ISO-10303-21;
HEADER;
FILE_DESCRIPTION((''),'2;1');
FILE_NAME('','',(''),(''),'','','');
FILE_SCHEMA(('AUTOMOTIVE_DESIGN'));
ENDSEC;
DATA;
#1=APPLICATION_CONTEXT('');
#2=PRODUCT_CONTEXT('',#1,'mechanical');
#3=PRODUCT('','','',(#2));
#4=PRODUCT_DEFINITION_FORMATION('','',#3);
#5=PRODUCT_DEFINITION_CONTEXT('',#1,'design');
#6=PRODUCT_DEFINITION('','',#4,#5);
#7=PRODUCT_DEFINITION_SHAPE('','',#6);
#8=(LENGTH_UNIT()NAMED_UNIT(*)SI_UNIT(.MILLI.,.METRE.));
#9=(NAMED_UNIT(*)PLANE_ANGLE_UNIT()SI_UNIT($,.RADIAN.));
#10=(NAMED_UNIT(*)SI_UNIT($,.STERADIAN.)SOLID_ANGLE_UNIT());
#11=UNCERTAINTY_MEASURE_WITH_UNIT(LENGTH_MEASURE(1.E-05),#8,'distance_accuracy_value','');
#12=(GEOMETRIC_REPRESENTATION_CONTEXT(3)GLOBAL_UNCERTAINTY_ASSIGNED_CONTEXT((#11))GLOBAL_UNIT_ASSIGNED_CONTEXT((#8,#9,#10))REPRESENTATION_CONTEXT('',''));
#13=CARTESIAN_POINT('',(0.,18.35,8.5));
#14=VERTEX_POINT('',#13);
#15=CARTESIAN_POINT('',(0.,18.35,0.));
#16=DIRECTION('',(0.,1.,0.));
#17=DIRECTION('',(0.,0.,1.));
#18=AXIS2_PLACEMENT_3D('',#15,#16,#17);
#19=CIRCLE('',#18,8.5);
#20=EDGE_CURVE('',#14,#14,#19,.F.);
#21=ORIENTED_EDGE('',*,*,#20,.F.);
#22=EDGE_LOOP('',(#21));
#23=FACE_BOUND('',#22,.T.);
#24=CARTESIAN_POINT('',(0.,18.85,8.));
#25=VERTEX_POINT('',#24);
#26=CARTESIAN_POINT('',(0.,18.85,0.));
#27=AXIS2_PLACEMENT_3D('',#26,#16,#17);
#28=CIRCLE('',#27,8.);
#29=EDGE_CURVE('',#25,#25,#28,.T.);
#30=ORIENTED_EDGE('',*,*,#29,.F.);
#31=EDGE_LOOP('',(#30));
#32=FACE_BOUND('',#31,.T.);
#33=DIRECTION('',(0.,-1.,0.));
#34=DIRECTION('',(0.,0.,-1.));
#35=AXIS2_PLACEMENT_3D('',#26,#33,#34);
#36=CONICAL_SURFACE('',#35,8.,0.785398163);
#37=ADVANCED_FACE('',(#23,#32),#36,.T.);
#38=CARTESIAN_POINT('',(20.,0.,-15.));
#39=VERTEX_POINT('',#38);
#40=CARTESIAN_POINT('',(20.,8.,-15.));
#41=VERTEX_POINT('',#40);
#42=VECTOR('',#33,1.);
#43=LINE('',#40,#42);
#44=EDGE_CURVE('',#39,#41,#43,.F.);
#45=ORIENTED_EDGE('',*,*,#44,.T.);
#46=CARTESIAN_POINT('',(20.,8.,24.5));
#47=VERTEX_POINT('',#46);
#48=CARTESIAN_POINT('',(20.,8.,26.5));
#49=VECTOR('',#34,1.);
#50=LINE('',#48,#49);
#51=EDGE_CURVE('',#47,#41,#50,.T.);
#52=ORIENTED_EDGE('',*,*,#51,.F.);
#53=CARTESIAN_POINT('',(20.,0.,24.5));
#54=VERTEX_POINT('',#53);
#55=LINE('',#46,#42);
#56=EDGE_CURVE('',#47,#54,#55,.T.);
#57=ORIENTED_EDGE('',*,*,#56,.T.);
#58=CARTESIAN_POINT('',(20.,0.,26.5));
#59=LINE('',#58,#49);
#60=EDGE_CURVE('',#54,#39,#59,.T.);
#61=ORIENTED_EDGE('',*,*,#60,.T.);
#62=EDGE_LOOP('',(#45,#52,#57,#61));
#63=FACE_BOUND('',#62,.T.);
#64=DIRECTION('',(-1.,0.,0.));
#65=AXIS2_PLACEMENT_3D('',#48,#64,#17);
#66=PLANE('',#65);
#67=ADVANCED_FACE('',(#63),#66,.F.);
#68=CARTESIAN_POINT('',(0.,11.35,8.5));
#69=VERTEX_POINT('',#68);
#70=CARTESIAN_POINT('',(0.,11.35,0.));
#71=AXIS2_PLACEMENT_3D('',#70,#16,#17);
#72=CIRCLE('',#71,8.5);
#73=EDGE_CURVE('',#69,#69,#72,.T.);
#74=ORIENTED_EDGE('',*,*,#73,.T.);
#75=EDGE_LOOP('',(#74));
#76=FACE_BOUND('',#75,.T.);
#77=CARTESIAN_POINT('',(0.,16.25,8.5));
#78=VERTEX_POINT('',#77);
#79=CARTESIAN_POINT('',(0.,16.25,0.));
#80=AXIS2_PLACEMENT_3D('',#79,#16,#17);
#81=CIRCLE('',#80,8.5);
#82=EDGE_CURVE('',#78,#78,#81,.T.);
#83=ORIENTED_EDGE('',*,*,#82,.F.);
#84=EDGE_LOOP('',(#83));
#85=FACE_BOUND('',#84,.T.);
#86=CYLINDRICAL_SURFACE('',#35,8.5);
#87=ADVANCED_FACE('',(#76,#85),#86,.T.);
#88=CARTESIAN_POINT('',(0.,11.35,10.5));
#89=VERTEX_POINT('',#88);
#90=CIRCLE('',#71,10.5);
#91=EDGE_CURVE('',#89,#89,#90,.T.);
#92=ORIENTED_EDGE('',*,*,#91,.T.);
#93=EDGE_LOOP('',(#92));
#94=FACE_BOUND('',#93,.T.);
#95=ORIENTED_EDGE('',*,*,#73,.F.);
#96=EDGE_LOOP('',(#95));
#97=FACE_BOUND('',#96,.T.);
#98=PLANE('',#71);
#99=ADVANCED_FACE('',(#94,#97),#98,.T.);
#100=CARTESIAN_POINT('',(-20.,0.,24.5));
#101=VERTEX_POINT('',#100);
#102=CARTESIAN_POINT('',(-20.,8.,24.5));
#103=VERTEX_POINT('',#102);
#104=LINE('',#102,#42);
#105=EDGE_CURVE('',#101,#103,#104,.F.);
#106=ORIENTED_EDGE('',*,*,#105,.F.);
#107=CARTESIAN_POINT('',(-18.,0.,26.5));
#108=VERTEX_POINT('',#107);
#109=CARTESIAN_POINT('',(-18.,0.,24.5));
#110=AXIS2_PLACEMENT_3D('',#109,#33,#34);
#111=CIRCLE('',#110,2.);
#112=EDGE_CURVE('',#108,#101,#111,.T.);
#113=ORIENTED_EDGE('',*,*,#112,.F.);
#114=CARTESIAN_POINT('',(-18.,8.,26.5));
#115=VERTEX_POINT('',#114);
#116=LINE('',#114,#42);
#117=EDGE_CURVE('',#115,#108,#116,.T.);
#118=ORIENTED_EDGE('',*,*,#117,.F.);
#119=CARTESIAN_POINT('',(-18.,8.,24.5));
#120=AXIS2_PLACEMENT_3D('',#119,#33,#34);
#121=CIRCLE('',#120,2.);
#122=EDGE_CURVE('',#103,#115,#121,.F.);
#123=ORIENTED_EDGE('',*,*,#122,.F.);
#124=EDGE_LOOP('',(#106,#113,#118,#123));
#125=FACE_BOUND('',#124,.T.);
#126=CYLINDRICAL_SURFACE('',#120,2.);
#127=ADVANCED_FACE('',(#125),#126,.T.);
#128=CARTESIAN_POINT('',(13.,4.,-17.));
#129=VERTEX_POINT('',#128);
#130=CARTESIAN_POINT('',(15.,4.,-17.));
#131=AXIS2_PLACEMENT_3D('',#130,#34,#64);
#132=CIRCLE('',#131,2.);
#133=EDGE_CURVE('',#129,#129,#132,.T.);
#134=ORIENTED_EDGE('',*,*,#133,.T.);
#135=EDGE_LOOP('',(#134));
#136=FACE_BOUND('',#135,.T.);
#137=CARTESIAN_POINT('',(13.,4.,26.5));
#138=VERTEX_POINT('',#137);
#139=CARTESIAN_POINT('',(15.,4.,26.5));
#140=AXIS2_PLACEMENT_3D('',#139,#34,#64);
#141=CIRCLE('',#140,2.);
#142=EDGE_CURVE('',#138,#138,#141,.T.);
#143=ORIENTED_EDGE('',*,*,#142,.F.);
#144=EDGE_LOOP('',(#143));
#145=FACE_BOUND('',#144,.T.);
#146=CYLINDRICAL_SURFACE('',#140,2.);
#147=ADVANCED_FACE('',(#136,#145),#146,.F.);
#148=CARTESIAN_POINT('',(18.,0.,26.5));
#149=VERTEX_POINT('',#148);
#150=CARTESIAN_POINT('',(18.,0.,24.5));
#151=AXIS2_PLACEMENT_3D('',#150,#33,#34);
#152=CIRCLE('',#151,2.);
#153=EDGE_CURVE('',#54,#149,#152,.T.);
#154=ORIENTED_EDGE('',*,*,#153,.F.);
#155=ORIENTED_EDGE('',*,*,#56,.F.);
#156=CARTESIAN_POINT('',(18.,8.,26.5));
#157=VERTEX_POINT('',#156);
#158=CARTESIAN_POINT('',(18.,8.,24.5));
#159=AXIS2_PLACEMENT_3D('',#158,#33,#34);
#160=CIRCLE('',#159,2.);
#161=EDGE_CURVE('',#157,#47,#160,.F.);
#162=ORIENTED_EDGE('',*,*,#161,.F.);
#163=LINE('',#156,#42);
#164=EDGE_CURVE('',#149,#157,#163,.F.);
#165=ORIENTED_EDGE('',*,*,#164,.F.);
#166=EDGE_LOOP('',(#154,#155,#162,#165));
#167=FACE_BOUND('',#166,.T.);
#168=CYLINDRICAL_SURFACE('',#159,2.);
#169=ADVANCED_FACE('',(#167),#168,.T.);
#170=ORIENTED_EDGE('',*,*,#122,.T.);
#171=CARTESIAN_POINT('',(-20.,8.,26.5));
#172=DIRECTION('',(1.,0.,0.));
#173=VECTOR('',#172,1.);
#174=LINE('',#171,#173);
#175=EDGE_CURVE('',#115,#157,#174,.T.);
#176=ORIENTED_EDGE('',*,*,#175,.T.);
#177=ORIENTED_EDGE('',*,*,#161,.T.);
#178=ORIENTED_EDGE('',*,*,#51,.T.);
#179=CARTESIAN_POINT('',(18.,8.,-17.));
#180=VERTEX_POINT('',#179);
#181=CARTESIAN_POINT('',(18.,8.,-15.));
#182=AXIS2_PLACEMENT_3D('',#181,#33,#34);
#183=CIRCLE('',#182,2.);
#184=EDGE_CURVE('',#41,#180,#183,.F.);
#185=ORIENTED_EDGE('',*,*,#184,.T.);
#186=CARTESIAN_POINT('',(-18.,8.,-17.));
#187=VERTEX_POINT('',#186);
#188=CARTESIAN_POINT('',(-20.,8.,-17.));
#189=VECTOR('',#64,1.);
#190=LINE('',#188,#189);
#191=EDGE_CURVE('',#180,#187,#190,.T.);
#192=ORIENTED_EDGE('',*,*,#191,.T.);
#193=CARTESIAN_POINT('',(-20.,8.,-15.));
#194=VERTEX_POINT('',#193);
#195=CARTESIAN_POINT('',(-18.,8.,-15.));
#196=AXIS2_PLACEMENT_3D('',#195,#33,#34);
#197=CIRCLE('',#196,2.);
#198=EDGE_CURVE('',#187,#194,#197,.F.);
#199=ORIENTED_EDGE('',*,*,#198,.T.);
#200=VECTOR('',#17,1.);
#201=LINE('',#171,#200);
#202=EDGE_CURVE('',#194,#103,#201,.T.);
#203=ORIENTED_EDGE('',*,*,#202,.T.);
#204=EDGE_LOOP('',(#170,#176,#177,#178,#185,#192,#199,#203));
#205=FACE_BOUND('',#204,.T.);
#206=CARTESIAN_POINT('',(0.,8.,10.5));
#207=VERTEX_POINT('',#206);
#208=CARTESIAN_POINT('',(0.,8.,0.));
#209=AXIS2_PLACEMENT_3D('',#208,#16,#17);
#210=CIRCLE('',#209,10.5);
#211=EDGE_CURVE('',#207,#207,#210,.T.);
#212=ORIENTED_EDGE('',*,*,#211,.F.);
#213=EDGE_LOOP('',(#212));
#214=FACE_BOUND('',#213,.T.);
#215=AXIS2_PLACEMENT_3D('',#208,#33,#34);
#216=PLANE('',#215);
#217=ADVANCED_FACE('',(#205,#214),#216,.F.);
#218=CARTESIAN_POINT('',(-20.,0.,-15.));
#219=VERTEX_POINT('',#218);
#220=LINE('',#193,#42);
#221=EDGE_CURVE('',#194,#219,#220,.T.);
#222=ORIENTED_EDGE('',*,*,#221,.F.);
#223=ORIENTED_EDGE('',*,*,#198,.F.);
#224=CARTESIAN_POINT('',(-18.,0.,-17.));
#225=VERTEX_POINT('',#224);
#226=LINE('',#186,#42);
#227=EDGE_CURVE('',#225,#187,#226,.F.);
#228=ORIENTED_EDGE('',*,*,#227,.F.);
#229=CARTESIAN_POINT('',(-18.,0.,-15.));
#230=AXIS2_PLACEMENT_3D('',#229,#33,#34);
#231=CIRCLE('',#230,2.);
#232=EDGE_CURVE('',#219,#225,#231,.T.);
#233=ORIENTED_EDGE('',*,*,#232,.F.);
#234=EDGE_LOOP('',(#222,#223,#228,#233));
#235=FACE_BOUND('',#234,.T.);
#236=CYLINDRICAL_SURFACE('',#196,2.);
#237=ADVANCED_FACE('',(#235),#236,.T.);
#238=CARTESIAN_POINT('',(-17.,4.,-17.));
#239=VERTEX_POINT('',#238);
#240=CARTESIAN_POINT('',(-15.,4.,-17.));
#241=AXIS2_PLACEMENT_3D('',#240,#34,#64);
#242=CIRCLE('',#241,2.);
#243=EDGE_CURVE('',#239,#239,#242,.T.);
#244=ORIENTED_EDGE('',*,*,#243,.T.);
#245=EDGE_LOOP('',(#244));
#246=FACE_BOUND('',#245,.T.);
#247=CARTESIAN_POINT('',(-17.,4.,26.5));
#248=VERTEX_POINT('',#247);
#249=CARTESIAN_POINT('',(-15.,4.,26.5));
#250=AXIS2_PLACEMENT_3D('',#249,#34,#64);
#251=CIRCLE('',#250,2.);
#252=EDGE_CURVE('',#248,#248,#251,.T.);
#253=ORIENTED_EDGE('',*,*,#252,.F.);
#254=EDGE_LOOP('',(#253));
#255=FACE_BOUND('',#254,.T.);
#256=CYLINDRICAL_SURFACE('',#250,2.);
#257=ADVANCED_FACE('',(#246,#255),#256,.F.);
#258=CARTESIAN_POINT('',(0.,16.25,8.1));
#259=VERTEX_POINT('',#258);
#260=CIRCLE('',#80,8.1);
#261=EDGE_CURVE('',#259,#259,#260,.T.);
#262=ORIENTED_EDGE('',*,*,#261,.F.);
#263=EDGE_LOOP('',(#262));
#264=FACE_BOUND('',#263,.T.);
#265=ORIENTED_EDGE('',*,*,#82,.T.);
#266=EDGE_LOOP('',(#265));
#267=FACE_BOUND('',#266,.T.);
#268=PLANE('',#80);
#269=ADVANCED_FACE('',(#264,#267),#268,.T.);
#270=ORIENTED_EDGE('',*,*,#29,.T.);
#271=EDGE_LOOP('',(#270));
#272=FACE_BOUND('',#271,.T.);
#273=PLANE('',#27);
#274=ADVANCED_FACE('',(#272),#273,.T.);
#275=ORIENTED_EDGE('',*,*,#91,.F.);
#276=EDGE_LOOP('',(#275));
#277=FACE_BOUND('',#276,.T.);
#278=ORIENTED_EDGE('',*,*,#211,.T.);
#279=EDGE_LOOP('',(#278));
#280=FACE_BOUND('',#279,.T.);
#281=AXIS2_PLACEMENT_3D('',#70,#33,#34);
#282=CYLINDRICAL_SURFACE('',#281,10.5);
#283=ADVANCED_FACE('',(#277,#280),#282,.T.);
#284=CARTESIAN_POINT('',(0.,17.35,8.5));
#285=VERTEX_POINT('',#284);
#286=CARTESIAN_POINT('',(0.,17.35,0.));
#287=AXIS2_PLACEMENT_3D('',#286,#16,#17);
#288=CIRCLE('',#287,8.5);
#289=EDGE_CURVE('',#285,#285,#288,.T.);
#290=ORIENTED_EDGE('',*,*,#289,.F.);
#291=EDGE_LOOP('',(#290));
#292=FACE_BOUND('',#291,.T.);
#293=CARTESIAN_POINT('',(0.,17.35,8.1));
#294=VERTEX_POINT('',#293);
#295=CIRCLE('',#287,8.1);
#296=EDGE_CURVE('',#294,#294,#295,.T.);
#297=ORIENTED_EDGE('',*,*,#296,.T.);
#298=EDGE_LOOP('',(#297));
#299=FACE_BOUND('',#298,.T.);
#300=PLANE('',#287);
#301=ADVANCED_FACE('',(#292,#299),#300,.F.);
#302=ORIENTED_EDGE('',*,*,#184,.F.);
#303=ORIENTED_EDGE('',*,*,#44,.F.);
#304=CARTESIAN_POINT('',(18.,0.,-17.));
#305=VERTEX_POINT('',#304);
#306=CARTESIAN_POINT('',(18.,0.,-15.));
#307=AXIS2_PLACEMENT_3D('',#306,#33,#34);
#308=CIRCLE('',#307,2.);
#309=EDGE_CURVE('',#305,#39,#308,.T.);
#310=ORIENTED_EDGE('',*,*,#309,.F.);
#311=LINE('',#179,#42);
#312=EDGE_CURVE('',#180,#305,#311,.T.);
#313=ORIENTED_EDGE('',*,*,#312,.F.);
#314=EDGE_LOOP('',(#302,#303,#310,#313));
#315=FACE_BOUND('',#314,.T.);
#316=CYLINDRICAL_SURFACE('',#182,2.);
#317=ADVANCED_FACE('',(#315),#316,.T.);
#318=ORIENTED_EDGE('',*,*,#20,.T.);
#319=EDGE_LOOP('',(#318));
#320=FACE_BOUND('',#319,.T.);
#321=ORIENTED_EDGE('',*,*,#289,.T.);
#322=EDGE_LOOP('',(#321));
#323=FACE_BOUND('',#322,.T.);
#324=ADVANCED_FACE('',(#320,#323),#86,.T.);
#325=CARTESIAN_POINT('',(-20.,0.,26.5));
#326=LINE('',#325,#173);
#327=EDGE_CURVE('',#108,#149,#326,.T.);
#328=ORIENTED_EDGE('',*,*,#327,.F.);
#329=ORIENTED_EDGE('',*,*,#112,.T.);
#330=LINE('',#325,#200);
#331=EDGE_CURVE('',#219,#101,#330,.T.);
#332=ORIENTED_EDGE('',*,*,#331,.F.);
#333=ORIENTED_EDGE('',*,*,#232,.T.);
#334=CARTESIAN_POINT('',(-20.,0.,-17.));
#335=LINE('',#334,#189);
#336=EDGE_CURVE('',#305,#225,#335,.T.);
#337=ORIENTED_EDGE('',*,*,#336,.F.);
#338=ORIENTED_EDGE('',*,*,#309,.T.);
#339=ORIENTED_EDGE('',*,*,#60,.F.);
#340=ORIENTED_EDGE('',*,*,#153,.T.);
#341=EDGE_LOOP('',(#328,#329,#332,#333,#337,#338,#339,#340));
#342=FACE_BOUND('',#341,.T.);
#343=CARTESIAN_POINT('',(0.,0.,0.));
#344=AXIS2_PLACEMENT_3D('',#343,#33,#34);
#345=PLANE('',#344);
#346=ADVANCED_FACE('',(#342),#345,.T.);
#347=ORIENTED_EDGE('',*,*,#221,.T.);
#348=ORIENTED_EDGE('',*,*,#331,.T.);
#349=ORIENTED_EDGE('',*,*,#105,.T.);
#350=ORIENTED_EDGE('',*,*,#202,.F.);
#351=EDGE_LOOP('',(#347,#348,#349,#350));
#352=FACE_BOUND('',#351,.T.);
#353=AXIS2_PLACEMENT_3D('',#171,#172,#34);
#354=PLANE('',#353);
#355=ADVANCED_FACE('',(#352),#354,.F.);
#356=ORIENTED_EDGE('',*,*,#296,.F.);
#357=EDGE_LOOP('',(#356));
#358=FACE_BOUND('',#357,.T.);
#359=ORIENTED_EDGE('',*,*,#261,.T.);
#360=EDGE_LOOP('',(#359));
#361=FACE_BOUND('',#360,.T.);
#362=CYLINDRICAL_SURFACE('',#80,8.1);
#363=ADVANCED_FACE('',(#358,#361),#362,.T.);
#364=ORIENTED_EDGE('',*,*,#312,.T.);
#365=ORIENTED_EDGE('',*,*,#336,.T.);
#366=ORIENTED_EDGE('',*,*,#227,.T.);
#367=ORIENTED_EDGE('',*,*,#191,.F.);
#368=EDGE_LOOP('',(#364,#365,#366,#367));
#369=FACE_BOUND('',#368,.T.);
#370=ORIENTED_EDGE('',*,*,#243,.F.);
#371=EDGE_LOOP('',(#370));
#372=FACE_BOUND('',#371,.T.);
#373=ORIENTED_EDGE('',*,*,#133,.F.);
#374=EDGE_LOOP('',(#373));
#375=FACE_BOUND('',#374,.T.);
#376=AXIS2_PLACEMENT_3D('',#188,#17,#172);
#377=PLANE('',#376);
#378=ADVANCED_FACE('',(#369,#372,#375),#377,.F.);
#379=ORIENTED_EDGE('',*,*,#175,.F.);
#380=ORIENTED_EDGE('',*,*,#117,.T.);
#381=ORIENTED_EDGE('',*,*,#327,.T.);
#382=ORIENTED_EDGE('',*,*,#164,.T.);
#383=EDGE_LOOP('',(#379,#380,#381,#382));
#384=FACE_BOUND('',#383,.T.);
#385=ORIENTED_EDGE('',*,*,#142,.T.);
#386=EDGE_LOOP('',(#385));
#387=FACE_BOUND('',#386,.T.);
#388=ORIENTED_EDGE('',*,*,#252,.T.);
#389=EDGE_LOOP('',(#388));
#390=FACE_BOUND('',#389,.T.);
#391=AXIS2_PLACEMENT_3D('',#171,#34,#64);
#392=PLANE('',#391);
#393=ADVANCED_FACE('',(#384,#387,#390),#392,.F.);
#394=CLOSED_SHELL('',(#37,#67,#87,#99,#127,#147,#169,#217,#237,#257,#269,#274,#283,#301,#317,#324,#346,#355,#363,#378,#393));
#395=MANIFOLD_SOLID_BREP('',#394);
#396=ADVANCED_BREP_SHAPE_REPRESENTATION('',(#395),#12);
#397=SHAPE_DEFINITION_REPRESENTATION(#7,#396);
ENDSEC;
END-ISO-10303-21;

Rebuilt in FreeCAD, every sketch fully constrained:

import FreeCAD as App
import Part
import Sketcher
Q = App.Units.Quantity


def edges_at(feature, points):
    """Names of the edges that pass closest to the given points."""
    edges = feature.Shape.Edges
    near = lambda p: min(range(len(edges)), key=lambda i: edges[i].distToShape(Part.Vertex(*p))[0])
    return sorted({f"Edge{near(p) + 1}" for p in points})


def add_polygon(sketch, points):
    """Adds a closed chain of lines whose ends are joined by coincident constraints."""
    first, n = sketch.GeometryCount, len(points)
    for a, b in zip(points, points[1:] + points[:1]):
        sketch.addGeometry(Part.LineSegment(App.Vector(*a, 0), App.Vector(*b, 0)), False)
    for i in range(n):
        sketch.addConstraint(Sketcher.Constraint("Coincident", first + i, 2, first + (i + 1) % n, 1))

doc = App.newDocument("Part")
body = doc.addObject("PartDesign::Body", "Body")

# Sketch on XZ plane
sketch1 = doc.addObject("Sketcher::SketchObject", "Sketch")
body.addObject(sketch1)
sketch1.AttachmentSupport = (doc.XZ_Plane, [""])
sketch1.MapMode = "FlatFace"
add_polygon(sketch1, [(-20, -17), (-20, 26.5), (20, 26.5), (20, -17)])  # lines 0-3
sketch1.addConstraint([
    Sketcher.Constraint("Vertical", 0),
    Sketcher.Constraint("Horizontal", 1),
    Sketcher.Constraint("Vertical", 2),
    Sketcher.Constraint("Horizontal", 3),
    Sketcher.Constraint("DistanceX", 1, 1, 1, 2, Q("40 mm")),
    Sketcher.Constraint("DistanceY", 0, 1, 0, 2, Q("43.5 mm")),
    Sketcher.Constraint("DistanceX", 0, 2, -1, 1, Q("20 mm")),
    Sketcher.Constraint("DistanceY", 2, 2, -1, 1, Q("17 mm")),
])
pad1 = doc.addObject("PartDesign::Pad", "Pad")
body.addObject(pad1)
pad1.Profile = sketch1
pad1.Length = 8
pad1.Reversed = True

# Sketch on XZ plane
sketch2 = doc.addObject("Sketcher::SketchObject", "Sketch001")
body.addObject(sketch2)
sketch2.AttachmentSupport = (doc.XZ_Plane, [""])
sketch2.MapMode = "FlatFace"
sketch2.AttachmentOffset = App.Placement(App.Vector(0, 0, -8), App.Rotation())
sketch2.addGeometry(Part.Circle(App.Vector(0, 0, 0), App.Vector(0, 0, 1), 10.5), False)
sketch2.addConstraint([
    Sketcher.Constraint("Coincident", 0, 3, -1, 1),
    Sketcher.Constraint("Diameter", 0, Q("21 mm")),
])
pad2 = doc.addObject("PartDesign::Pad", "Pad001")
body.addObject(pad2)
pad2.Profile = sketch2
pad2.Length = 3.35
pad2.Reversed = True

# Sketch on XZ plane
sketch3 = doc.addObject("Sketcher::SketchObject", "Sketch002")
body.addObject(sketch3)
sketch3.AttachmentSupport = (doc.XZ_Plane, [""])
sketch3.MapMode = "FlatFace"
sketch3.AttachmentOffset = App.Placement(App.Vector(0, 0, -11.35), App.Rotation())
sketch3.addGeometry(Part.Circle(App.Vector(0, 0, 0), App.Vector(0, 0, 1), 8.5), False)
sketch3.addConstraint([
    Sketcher.Constraint("Coincident", 0, 3, -1, 1),
    Sketcher.Constraint("Diameter", 0, Q("17 mm")),
])
pad3 = doc.addObject("PartDesign::Pad", "Pad002")
body.addObject(pad3)
pad3.Profile = sketch3
pad3.Length = 7.5
pad3.Reversed = True

# Sketch on XY plane
sketch4 = doc.addObject("Sketcher::SketchObject", "Sketch003")
body.addObject(sketch4)
sketch4.AttachmentSupport = (doc.XY_Plane, [""])
sketch4.MapMode = "FlatFace"
sketch4.AttachmentOffset = App.Placement(App.Vector(0, 0, -17), App.Rotation())
sketch4.addGeometry([
    Part.Circle(App.Vector(15, 4, 0), App.Vector(0, 0, 1), 2),
    Part.Circle(App.Vector(-15, 4, 0), App.Vector(0, 0, 1), 2),
], False)
sketch4.addConstraint([
    Sketcher.Constraint("Equal", 0, 1),
    Sketcher.Constraint("Symmetric", 0, 3, 1, 3, -2),
    Sketcher.Constraint("Diameter", 0, Q("4 mm")),
    Sketcher.Constraint("DistanceX", -1, 1, 0, 3, Q("15 mm")),
    Sketcher.Constraint("DistanceY", -1, 1, 0, 3, Q("4 mm")),
])
pocket1 = doc.addObject("PartDesign::Pocket", "Pocket")
body.addObject(pocket1)
pocket1.Profile = sketch4
pocket1.Type = "ThroughAll"
pocket1.Reversed = True

# Sketch on XZ plane
sketch5 = doc.addObject("Sketcher::SketchObject", "Sketch004")
body.addObject(sketch5)
sketch5.AttachmentSupport = (doc.XZ_Plane, [""])
sketch5.MapMode = "FlatFace"
sketch5.AttachmentOffset = App.Placement(App.Vector(0, 0, -16.25), App.Rotation())
sketch5.addGeometry([
    Part.Circle(App.Vector(0, 0, 0), App.Vector(0, 0, 1), 8.5),
    Part.Circle(App.Vector(0, 0, 0), App.Vector(0, 0, 1), 8.1),
], False)
sketch5.addConstraint([
    Sketcher.Constraint("Coincident", 0, 3, -1, 1),
    Sketcher.Constraint("Coincident", 1, 3, -1, 1),
    Sketcher.Constraint("Diameter", 0, Q("17 mm")),
    Sketcher.Constraint("Diameter", 1, Q("16.2 mm")),
])
pocket2 = doc.addObject("PartDesign::Pocket", "Pocket001")
body.addObject(pocket2)
pocket2.Profile = sketch5
pocket2.Length = 1.1
doc.recompute()

chamfer = doc.addObject("PartDesign::Chamfer", "Chamfer")
body.addObject(chamfer)
chamfer.Base = (pocket2, edges_at(pocket2, [(0, 18.85, -8.5)]))
chamfer.Size = 0.5
doc.recompute()

fillet = doc.addObject("PartDesign::Fillet", "Fillet")
body.addObject(fillet)
fillet.Base = (chamfer, edges_at(chamfer, [
    (20, 4, 26.5),
    (-20, 4, 26.5),
    (-20, 4, -17),
    (20, 4, -17),
]))
fillet.Radius = 2

doc.recompute()
